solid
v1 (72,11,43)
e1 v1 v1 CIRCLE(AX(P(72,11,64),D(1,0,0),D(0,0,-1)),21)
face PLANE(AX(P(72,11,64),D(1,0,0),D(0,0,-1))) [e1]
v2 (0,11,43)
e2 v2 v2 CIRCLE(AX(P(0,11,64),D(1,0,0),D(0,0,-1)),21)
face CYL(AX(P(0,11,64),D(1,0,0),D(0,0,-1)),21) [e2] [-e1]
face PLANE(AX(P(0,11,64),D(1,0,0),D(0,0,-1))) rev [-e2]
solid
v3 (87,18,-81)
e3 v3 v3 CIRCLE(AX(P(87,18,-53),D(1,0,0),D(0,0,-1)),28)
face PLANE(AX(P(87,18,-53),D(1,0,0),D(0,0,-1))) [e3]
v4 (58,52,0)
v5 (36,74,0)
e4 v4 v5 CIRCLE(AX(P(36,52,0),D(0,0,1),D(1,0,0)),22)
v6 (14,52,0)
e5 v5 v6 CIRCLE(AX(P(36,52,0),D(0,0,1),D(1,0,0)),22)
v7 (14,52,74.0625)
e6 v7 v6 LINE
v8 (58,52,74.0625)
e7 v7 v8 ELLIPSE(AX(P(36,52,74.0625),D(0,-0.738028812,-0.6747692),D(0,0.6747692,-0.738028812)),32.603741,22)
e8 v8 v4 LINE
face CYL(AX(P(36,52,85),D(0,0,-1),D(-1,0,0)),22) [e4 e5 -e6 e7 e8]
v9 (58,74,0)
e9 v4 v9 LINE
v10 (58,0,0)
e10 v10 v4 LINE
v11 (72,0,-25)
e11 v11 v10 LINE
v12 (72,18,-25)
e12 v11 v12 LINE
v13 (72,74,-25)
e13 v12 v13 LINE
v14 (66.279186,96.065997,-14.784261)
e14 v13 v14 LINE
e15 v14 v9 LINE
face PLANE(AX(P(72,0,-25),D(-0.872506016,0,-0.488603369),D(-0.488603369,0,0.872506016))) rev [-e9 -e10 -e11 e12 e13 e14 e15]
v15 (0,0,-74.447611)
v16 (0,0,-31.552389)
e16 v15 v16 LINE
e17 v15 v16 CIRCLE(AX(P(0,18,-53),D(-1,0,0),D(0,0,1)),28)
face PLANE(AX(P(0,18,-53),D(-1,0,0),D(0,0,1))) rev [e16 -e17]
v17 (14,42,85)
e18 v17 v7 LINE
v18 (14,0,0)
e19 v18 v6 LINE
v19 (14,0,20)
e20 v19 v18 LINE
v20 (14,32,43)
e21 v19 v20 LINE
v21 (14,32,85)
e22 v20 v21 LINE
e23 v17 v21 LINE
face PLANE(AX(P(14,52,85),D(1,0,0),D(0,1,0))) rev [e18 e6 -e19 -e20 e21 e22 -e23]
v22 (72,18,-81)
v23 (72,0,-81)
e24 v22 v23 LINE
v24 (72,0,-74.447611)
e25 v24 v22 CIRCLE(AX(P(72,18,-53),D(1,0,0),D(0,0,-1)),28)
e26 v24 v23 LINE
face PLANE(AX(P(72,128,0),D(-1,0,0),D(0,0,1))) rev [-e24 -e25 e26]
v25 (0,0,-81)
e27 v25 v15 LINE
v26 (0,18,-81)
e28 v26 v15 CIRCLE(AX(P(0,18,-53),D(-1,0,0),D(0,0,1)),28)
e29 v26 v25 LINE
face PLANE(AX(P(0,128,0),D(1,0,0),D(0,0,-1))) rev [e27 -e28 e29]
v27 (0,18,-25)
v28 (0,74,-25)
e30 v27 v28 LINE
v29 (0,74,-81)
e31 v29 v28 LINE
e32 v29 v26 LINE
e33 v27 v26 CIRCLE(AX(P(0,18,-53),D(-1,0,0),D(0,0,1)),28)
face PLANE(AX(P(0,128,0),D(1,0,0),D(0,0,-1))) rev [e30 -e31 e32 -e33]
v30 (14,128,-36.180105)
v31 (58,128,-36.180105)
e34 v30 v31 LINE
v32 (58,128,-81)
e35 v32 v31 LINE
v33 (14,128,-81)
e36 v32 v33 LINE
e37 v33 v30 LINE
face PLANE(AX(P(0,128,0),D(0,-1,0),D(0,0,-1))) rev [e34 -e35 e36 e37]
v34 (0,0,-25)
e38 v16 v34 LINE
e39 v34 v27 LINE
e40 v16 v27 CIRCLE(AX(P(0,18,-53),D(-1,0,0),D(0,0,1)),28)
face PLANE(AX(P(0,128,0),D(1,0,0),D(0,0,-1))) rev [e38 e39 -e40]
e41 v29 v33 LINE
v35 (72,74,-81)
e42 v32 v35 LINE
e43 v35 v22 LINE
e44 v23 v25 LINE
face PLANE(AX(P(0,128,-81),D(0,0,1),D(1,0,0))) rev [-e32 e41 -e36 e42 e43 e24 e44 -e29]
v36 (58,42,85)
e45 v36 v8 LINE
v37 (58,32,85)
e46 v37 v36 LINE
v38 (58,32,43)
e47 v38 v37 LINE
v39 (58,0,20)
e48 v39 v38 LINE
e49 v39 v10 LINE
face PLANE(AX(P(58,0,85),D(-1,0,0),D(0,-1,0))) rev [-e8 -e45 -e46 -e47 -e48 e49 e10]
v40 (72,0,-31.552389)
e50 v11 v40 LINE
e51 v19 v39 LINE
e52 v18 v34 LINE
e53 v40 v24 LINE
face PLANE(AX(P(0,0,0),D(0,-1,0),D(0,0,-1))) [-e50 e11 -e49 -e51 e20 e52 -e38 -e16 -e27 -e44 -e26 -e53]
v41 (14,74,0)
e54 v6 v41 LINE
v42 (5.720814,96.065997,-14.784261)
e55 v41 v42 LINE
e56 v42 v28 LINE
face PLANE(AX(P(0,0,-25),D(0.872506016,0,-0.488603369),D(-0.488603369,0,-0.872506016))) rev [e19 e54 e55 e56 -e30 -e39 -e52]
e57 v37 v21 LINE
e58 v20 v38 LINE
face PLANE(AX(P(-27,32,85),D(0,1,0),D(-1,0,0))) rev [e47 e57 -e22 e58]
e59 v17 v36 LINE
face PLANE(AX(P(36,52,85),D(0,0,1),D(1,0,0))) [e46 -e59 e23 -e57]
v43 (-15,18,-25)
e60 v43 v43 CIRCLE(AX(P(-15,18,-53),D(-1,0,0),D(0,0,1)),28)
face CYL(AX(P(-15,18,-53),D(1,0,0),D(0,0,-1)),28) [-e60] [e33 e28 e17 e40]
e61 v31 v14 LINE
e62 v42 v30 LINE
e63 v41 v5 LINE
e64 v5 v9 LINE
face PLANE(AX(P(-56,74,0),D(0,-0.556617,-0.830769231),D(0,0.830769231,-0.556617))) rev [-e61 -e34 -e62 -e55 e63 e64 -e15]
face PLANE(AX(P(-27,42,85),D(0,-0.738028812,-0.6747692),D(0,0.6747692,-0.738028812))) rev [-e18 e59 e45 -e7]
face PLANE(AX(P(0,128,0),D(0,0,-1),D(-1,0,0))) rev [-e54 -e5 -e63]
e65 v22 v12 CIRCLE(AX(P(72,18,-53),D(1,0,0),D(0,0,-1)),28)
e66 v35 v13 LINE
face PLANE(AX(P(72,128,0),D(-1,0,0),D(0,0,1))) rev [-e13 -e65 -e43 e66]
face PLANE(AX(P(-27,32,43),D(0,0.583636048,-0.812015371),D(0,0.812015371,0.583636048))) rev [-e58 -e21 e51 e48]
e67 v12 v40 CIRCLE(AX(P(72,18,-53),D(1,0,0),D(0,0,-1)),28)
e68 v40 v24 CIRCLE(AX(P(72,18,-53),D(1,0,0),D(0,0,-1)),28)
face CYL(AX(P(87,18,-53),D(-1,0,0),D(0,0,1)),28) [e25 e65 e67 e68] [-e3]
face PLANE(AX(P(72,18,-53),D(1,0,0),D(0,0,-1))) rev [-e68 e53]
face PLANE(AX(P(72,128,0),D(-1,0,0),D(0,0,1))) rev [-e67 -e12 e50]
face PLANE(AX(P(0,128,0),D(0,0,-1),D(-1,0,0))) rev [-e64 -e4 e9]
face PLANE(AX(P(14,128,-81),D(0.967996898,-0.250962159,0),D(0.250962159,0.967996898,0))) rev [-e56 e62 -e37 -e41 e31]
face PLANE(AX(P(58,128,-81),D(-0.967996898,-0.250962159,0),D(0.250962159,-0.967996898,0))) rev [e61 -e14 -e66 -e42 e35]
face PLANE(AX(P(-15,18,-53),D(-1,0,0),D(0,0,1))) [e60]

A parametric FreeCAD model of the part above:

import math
import FreeCAD as App
import Part
import Sketcher


def add_polygon(sketch, points):
    """Adds a closed chain of lines whose ends are joined by coincident constraints."""
    first, n = sketch.GeometryCount, len(points)
    for a, b in zip(points, points[1:] + points[:1]):
        sketch.addGeometry(Part.LineSegment(App.Vector(*a, 0), App.Vector(*b, 0)), False)
    for i in range(n):
        sketch.addConstraint(Sketcher.Constraint("Coincident", first + i, 2, first + (i + 1) % n, 1))

doc = App.newDocument("Part")
body = doc.addObject("PartDesign::Body", "Body")

# Sketch on XZ plane
sketch1 = body.newObject("Sketcher::SketchObject", "Sketch")
sketch1.AttachmentSupport = (doc.getObject("XZ_Plane"), [""])
sketch1.MapMode = "FlatFace"
add_polygon(sketch1, [(0, -81), (0, 0), (72, 0), (72, -81)])  # lines 0-3
sketch1.addConstraint([
    Sketcher.Constraint("Vertical", 0),
    Sketcher.Constraint("Horizontal", 1),
    Sketcher.Constraint("Vertical", 2),
    Sketcher.Constraint("Horizontal", 3),
    Sketcher.Constraint("Coincident", 0, 2, -1, 1),
    Sketcher.Constraint("DistanceX", 1, 1, 1, 2, 72.0),
    Sketcher.Constraint("DistanceY", 0, 1, 0, 2, 81.0),
])
pad1 = body.newObject("PartDesign::Pad", "Pad")
pad1.Profile = sketch1
pad1.Length = 128
pad1.Reversed = True

# Sketch on XZ plane
sketch2 = body.newObject("Sketcher::SketchObject", "Sketch001")
sketch2.AttachmentSupport = (doc.getObject("XZ_Plane"), [""])
sketch2.MapMode = "FlatFace"
sketch2.AttachmentOffset = App.Placement(App.Vector(0, 0, -128), App.Rotation())
add_polygon(sketch2, [(72, -25), (58, 0), (72, 0)])  # lines 0-2
add_polygon(sketch2, [(0, 0), (14, 0), (0, -25)])  # lines 3-5
sketch2.addConstraint([
    Sketcher.Constraint("Horizontal", 1),
    Sketcher.Constraint("Vertical", 2),
    Sketcher.Constraint("Horizontal", 3),
    Sketcher.Constraint("Vertical", 5),
    Sketcher.Constraint("Coincident", 5, 2, -1, 1),
    Sketcher.Constraint("PointOnObject", 0, 2, -1),
    Sketcher.Constraint("Horizontal", 2, 2, 4, 2),
    Sketcher.Constraint("Equal", 1, 3),
    Sketcher.Constraint("DistanceX", 1, 1, 1, 2, 14.0),
    Sketcher.Constraint("DistanceY", 2, 2, 2, 1, 25.0),
    Sketcher.Constraint("DistanceX", -1, 1, 0, 2, 58.0),
])
pocket1 = body.newObject("PartDesign::Pocket", "Pocket")
pocket1.Profile = sketch2
pocket1.Type = "ThroughAll"
pocket1.Reversed = True

# Sketch on XY plane
sketch3 = body.newObject("Sketcher::SketchObject", "Sketch002")
sketch3.AttachmentSupport = (doc.getObject("XY_Plane"), [""])
sketch3.MapMode = "FlatFace"
add_polygon(sketch3, [(58, 128), (72, 74), (72, 128)])  # lines 0-2
add_polygon(sketch3, [(0, 74), (14, 128), (0, 128)])  # lines 3-5
sketch3.addConstraint([
    Sketcher.Constraint("Vertical", 1),
    Sketcher.Constraint("Horizontal", 2),
    Sketcher.Constraint("Horizontal", 4),
    Sketcher.Constraint("Vertical", 5),
    Sketcher.Constraint("PointOnObject", 4, 2, -2),
    Sketcher.Constraint("Horizontal", 2, 2, 3, 2),
    Sketcher.Constraint("Horizontal", 0, 2, 5, 2),
    Sketcher.Constraint("Equal", 2, 4),
    Sketcher.Constraint("DistanceX", 2, 2, 2, 1, 14.0),
    Sketcher.Constraint("DistanceY", 1, 1, 1, 2, 54.0),
    Sketcher.Constraint("DistanceX", -1, 1, 0, 2, 72.0),
    Sketcher.Constraint("DistanceY", -1, 1, 0, 2, 74.0),
])
pocket2 = body.newObject("PartDesign::Pocket", "Pocket001")
pocket2.Profile = sketch3
pocket2.Type = "ThroughAll"

# Sketch on YZ plane
sketch4 = body.newObject("Sketcher::SketchObject", "Sketch003")
sketch4.AttachmentSupport = (doc.getObject("YZ_Plane"), [""])
sketch4.MapMode = "FlatFace"
sketch4.AttachmentOffset = App.Placement(App.Vector(0, 0, 72), App.Rotation())
add_polygon(sketch4, [(74, 0), (128, -36), (128, 0)])  # lines 0-2
sketch4.addConstraint([
    Sketcher.Constraint("Vertical", 1),
    Sketcher.Constraint("Horizontal", 2),
    Sketcher.Constraint("PointOnObject", 1, 2, -1),
    Sketcher.Constraint("DistanceX", 2, 2, 2, 1, 54.0),
    Sketcher.Constraint("Distance", 0, 65.0),
    Sketcher.Constraint("DistanceX", -1, 1, 0, 2, 128.0),
])
pocket3 = body.newObject("PartDesign::Pocket", "Pocket002")
pocket3.Profile = sketch4
pocket3.Length = 128

# Sketch on YZ plane
sketch5 = body.newObject("Sketcher::SketchObject", "Sketch004")
sketch5.AttachmentSupport = (doc.getObject("YZ_Plane"), [""])
sketch5.MapMode = "FlatFace"
sketch5.AttachmentOffset = App.Placement(App.Vector(0, 0, 72), App.Rotation())
sketch5.addGeometry(Part.Circle(App.Vector(18, -53, 0), App.Vector(0, 0, 1), 28), False)
sketch5.addConstraint([
    Sketcher.Constraint("Diameter", 0, 56.0),
    Sketcher.Constraint("DistanceX", -1, 1, 0, 3, 18.0),
    Sketcher.Constraint("DistanceY", 0, 3, -1, 1, 53.0),
])
pad2 = body.newObject("PartDesign::Pad", "Pad001")
pad2.Profile = sketch5
pad2.Length = 15

# Sketch on YZ plane
sketch6 = body.newObject("Sketcher::SketchObject", "Sketch005")
sketch6.AttachmentSupport = (doc.getObject("YZ_Plane"), [""])
sketch6.MapMode = "FlatFace"
sketch6.addGeometry(Part.Circle(App.Vector(18, -53, 0), App.Vector(0, 0, 1), 28), False)
sketch6.addConstraint([
    Sketcher.Constraint("Diameter", 0, 56.0),
    Sketcher.Constraint("DistanceX", -1, 1, 0, 3, 18.0),
    Sketcher.Constraint("DistanceY", 0, 3, -1, 1, 53.0),
])
pad3 = body.newObject("PartDesign::Pad", "Pad002")
pad3.Profile = sketch6
pad3.Length = 15
pad3.Reversed = True

# Sketch on XY plane
sketch7 = body.newObject("Sketcher::SketchObject", "Sketch006")
sketch7.AttachmentSupport = (doc.getObject("XY_Plane"), [""])
sketch7.MapMode = "FlatFace"
sketch7.addGeometry([
    Part.LineSegment(App.Vector(14, 52, 0), App.Vector(14, 0, 0)),
    Part.LineSegment(App.Vector(14, 0, 0), App.Vector(58, 0, 0)),
    Part.LineSegment(App.Vector(58, 0, 0), App.Vector(58, 52, 0)),
    Part.ArcOfCircle(Part.Circle(App.Vector(36, 52, 0), App.Vector(0, 0, 1), 22), math.radians(0), math.radians(180)),
], False)
sketch7.addConstraint([
    Sketcher.Constraint("Coincident", 0, 2, 1, 1),
    Sketcher.Constraint("Coincident", 1, 2, 2, 1),
    Sketcher.Constraint("Tangent", 2, 2, 3, 1),
    Sketcher.Constraint("Tangent", 3, 2, 0, 1),
    Sketcher.Constraint("Vertical", 0),
    Sketcher.Constraint("Horizontal", 1),
    Sketcher.Constraint("Vertical", 2),
    Sketcher.Constraint("PointOnObject", 0, 2, -1),
    Sketcher.Constraint("Radius", 3, 22.0),
    Sketcher.Constraint("DistanceY", 0, 2, 0, 1, 52.0),
    Sketcher.Constraint("DistanceX", -1, 1, 3, 3, 36.0),
])
pad4 = body.newObject("PartDesign::Pad", "Pad003")
pad4.Profile = sketch7
pad4.Length = 85

# Sketch on YZ plane
sketch8 = body.newObject("Sketcher::SketchObject", "Sketch007")
sketch8.AttachmentSupport = (doc.getObject("YZ_Plane"), [""])
sketch8.MapMode = "FlatFace"
sketch8.AttachmentOffset = App.Placement(App.Vector(0, 0, 58), App.Rotation())
add_polygon(sketch8, [(32, 43), (32, 85), (0, 85), (0, 20)])  # lines 0-3
add_polygon(sketch8, [(42, 85), (74, 50), (74, 85)])  # lines 4-6
sketch8.addConstraint([
    Sketcher.Constraint("Vertical", 0),
    Sketcher.Constraint("Horizontal", 1),
    Sketcher.Constraint("Vertical", 2),
    Sketcher.Constraint("Vertical", 5),
    Sketcher.Constraint("Horizontal", 6),
    Sketcher.Constraint("PointOnObject", 1, 2, -2),
    Sketcher.Constraint("Horizontal", 1, 2, 5, 2),
    Sketcher.Constraint("Equal", 1, 6),
    Sketcher.Constraint("DistanceX", 1, 2, 1, 1, 32.0),
    Sketcher.Constraint("DistanceY", 0, 1, 0, 2, 42.0),
    Sketcher.Constraint("DistanceY", 2, 2, 2, 1, 65.0),
    Sketcher.Constraint("DistanceY", 5, 1, 5, 2, 35.0),
    Sketcher.Constraint("DistanceY", -1, 1, 0, 2, 85.0),
    Sketcher.Constraint("DistanceX", -1, 1, 4, 2, 74.0),
])
pocket4 = body.newObject("PartDesign::Pocket", "Pocket003")
pocket4.Profile = sketch8
pocket4.Length = 85
body2 = doc.addObject("PartDesign::Body", "Body001")

# Sketch on YZ plane
sketch9 = body2.newObject("Sketcher::SketchObject", "Sketch008")
sketch9.AttachmentSupport = (doc.getObject("YZ_Plane001"), [""])
sketch9.MapMode = "FlatFace"
sketch9.AttachmentOffset = App.Placement(App.Vector(0, 0, 72), App.Rotation())
sketch9.addGeometry(Part.Circle(App.Vector(11, 64, 0), App.Vector(0, 0, 1), 21), False)
sketch9.addConstraint([
    Sketcher.Constraint("Diameter", 0, 42.0),
    Sketcher.Constraint("DistanceX", -1, 1, 0, 3, 11.0),
    Sketcher.Constraint("DistanceY", -1, 1, 0, 3, 64.0),
])
pad5 = body2.newObject("PartDesign::Pad", "Pad004")
pad5.Profile = sketch9
pad5.Length = 72
pad5.Reversed = True

doc.recompute()
